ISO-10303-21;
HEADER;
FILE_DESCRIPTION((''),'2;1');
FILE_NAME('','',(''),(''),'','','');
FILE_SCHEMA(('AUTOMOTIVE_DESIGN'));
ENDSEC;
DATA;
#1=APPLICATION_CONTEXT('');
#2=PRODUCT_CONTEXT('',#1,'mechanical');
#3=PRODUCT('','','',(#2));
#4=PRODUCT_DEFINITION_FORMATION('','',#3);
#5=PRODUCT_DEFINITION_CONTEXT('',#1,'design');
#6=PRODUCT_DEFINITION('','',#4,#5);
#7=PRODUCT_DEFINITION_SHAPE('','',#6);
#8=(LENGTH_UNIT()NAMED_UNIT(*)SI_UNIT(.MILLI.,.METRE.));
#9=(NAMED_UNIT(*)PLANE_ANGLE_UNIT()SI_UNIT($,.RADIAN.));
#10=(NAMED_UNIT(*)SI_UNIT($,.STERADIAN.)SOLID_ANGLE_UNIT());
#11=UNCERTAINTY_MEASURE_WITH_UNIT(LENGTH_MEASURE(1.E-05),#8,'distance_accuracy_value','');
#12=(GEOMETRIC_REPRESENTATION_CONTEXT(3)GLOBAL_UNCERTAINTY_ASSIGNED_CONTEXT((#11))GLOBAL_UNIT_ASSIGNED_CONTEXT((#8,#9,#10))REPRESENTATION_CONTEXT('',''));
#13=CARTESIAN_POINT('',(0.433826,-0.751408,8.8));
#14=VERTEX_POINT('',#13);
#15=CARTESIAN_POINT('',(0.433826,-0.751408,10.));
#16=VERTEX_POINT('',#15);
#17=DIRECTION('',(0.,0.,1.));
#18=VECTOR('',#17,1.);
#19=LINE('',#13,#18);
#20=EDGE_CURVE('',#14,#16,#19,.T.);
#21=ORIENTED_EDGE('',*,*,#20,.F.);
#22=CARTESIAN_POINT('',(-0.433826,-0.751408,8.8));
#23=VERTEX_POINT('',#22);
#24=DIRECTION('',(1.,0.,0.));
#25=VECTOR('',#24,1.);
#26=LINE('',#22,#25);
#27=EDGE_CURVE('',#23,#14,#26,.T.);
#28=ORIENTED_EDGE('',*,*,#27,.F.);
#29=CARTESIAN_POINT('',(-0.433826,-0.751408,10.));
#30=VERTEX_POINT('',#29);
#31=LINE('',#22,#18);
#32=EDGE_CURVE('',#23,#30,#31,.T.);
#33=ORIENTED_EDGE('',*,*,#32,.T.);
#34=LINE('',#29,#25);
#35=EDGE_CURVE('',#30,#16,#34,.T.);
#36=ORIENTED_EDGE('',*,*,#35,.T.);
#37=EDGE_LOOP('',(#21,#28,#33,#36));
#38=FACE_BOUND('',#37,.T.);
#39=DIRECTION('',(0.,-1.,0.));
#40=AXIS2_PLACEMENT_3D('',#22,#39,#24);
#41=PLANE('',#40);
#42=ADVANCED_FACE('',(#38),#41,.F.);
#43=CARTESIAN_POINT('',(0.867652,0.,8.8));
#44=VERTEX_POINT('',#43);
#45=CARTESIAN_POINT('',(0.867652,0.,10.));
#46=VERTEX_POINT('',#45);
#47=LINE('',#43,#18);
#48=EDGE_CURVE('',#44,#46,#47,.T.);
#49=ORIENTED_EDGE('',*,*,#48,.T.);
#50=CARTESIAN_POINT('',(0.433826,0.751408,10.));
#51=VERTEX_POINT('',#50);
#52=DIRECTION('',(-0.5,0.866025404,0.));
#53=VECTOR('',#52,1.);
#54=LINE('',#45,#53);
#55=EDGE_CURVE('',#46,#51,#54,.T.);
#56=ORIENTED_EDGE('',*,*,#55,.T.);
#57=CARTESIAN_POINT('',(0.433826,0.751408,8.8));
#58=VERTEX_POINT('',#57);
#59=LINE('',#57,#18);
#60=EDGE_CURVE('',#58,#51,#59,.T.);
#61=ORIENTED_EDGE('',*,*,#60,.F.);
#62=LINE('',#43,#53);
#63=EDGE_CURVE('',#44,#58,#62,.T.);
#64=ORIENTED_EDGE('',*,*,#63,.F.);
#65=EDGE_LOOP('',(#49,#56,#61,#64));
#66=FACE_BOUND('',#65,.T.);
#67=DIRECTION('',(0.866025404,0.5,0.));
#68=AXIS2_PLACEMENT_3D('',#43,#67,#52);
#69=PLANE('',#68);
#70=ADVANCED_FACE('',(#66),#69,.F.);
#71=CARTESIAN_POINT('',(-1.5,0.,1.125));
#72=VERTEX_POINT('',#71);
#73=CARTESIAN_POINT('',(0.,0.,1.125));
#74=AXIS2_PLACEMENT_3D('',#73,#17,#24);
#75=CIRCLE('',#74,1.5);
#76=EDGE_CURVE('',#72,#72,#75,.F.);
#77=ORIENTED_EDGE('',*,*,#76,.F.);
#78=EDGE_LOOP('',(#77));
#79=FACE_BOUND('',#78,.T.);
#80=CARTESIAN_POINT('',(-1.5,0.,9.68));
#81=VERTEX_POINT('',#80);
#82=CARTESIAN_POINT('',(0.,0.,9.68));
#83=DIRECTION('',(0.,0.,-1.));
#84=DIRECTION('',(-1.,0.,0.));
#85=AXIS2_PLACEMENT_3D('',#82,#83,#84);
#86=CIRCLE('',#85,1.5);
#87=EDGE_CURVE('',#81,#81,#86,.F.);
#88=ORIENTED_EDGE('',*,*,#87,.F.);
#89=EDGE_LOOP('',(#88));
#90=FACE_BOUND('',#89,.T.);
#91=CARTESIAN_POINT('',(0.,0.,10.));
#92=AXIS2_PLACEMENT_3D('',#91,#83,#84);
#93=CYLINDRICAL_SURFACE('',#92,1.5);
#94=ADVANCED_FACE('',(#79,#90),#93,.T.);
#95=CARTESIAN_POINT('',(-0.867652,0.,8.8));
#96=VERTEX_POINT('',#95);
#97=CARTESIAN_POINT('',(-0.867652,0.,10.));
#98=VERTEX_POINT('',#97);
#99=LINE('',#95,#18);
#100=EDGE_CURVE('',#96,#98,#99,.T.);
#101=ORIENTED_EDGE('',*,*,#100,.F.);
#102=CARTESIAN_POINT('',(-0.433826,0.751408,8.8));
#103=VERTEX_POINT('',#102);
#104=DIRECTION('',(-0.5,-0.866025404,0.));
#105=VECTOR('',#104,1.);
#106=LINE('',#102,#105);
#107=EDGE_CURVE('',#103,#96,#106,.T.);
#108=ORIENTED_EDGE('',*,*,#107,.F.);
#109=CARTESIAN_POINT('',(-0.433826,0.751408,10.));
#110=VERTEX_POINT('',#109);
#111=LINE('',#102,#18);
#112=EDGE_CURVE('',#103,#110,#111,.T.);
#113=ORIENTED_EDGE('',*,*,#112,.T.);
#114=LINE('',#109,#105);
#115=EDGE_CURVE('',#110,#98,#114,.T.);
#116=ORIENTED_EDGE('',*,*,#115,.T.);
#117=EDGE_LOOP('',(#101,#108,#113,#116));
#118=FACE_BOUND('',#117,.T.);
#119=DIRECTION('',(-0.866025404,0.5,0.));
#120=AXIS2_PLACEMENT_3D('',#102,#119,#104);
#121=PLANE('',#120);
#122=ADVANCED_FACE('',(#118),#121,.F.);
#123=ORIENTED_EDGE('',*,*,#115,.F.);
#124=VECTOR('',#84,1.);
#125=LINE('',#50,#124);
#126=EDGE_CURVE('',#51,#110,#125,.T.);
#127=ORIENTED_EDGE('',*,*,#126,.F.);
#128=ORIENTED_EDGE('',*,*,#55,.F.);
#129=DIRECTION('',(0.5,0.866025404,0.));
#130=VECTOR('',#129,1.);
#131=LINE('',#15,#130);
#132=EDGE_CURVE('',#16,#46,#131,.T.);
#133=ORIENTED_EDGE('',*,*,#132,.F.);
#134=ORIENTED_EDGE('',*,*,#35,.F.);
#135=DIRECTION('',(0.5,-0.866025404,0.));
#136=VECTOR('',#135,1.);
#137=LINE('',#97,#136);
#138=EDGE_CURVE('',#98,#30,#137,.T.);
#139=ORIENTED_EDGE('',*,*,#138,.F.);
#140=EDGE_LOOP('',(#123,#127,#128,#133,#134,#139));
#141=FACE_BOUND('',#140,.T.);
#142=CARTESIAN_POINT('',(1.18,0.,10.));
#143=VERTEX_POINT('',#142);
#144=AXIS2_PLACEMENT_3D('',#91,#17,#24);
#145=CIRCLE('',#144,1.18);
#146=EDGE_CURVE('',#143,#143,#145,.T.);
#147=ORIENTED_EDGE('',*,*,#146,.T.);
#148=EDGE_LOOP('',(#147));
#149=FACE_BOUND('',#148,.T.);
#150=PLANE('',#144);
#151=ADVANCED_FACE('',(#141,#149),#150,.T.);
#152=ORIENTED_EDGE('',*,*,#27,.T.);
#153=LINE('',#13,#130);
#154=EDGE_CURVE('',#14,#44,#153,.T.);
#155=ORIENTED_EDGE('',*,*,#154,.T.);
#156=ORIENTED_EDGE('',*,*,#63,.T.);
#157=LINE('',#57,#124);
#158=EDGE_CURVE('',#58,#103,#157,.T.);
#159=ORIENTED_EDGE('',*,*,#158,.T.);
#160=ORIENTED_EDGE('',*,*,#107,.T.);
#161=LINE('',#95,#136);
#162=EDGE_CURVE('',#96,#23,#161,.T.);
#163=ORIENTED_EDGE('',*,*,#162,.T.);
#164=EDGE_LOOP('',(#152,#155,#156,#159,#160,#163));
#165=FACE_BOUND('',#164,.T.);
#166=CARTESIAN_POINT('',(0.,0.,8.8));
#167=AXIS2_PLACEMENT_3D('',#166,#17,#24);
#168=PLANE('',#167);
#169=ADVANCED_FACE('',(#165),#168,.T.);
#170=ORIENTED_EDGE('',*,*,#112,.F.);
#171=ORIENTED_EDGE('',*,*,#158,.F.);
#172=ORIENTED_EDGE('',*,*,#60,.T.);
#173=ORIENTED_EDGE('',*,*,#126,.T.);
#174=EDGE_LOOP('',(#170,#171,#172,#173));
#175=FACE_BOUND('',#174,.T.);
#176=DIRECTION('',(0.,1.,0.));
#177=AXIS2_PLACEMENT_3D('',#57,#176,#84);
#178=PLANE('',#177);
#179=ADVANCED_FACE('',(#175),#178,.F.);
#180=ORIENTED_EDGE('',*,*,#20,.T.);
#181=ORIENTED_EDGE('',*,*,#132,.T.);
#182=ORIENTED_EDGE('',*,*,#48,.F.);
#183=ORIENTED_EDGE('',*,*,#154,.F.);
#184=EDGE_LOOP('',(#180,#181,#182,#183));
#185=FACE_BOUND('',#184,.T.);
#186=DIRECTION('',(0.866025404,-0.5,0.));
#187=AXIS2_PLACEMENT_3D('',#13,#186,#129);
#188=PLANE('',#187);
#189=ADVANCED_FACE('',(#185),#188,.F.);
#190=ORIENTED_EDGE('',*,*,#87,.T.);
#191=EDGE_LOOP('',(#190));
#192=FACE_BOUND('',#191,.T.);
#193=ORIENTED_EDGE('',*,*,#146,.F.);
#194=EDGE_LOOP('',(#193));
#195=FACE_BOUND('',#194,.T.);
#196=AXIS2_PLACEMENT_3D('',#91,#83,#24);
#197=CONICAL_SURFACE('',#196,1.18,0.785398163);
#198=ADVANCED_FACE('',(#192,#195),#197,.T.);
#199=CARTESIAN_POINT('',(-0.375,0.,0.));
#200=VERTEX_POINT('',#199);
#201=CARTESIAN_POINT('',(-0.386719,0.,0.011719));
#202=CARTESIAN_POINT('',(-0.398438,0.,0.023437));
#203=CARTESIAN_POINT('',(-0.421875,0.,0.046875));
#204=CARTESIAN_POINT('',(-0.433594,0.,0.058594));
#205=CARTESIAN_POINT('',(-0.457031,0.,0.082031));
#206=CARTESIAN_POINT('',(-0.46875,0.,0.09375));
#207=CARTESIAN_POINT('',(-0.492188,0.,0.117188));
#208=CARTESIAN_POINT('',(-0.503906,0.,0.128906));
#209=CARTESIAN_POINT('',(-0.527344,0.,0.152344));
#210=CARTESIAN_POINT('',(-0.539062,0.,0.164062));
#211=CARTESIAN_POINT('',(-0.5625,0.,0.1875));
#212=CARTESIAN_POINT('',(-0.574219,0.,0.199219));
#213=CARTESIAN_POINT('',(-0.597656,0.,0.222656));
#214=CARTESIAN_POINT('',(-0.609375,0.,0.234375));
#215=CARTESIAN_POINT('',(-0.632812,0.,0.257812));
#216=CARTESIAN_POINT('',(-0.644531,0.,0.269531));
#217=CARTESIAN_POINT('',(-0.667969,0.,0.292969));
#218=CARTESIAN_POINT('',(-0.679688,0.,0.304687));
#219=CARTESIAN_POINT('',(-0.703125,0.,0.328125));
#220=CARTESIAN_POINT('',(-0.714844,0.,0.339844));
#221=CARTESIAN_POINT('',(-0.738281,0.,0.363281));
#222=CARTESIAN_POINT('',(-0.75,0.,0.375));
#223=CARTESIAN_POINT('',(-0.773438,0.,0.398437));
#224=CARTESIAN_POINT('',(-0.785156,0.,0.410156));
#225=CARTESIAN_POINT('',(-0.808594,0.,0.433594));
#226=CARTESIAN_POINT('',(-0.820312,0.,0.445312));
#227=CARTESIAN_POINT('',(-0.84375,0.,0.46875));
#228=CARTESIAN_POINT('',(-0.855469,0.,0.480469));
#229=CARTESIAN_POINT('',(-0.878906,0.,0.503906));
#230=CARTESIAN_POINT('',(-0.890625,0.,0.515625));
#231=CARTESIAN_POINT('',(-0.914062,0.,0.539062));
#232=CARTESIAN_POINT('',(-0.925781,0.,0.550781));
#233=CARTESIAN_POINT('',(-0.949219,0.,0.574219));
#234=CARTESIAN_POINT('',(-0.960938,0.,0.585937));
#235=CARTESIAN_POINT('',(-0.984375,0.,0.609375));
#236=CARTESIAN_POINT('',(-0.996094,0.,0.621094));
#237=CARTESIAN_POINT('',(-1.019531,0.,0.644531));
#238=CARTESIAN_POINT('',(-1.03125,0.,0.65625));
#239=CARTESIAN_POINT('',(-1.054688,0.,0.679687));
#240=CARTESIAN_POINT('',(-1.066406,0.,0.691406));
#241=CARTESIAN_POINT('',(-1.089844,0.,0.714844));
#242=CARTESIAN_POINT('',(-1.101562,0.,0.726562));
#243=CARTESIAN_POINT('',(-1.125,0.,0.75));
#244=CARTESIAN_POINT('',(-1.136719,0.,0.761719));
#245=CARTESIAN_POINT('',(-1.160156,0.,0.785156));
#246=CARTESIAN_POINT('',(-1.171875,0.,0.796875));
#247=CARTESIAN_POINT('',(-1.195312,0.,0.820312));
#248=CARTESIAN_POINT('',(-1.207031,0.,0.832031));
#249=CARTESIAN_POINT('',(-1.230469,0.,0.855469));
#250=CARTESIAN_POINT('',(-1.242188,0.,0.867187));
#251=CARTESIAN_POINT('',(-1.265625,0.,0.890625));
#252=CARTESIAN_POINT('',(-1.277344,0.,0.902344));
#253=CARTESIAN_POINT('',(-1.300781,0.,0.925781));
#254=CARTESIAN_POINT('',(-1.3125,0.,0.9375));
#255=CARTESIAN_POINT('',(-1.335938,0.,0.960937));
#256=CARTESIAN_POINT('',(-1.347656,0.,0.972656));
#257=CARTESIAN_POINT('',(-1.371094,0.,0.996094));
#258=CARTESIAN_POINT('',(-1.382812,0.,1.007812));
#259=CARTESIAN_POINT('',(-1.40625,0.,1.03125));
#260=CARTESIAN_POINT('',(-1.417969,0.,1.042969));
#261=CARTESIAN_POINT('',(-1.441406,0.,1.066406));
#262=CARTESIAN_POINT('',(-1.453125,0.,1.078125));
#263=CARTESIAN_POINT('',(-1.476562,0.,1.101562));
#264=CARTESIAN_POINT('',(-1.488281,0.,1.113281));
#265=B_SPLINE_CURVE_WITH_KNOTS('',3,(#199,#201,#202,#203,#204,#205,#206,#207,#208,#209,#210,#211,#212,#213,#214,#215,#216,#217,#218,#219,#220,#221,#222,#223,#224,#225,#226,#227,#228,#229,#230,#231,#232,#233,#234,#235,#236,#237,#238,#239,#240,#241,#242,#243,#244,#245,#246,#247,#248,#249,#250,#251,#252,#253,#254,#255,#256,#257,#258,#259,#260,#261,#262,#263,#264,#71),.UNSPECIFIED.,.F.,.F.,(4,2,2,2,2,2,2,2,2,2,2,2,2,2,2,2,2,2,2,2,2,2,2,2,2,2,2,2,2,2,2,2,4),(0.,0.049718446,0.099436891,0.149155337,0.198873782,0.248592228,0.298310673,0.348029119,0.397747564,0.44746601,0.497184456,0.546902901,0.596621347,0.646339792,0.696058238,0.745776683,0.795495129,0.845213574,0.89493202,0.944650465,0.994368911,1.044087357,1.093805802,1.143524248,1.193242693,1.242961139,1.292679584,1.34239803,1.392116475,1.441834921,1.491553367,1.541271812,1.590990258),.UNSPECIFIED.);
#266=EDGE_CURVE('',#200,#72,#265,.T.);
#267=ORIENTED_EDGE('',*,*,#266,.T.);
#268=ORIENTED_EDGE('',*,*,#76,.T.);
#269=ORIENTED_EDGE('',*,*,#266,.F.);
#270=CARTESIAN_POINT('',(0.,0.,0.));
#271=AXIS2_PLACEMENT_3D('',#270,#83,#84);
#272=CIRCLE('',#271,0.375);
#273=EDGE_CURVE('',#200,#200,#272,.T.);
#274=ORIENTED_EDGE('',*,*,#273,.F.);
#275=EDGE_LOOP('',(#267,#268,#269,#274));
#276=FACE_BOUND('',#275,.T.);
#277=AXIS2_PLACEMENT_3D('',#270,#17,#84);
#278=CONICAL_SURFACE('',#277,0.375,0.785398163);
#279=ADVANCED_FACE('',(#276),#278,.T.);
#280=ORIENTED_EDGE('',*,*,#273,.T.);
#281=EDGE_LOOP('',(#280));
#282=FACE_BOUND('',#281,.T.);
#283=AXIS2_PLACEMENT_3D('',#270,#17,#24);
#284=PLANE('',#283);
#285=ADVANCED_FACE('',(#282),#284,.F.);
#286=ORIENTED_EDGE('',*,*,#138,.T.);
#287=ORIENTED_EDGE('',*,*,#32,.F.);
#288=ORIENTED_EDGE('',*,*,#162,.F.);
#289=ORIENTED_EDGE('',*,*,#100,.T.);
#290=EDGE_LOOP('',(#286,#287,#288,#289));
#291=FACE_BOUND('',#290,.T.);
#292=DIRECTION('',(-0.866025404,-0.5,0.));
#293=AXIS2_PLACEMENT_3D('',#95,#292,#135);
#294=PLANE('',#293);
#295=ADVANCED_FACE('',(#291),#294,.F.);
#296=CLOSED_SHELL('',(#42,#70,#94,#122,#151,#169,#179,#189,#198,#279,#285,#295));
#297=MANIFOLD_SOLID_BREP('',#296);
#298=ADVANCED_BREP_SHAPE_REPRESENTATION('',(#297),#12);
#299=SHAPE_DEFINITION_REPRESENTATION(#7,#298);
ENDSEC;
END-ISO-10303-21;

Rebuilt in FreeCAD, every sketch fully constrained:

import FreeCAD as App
import Part
import Sketcher

V = App.Vector
Q = App.Units.Quantity


def faces_at(feature, points):
    """Names of the faces that lie closest to the given points."""
    faces = feature.Shape.Faces
    near = lambda p: min(range(len(faces)), key=lambda i: faces[i].distToShape(Part.Vertex(*p))[0])
    return sorted({f"Face{near(p) + 1}" for p in points})


def add_polygon(sketch, points):
    """Adds a closed chain of lines whose ends are joined by coincident constraints."""
    first, n = sketch.GeometryCount, len(points)
    for a, b in zip(points, points[1:] + points[:1]):
        sketch.addGeometry(Part.LineSegment(App.Vector(*a, 0), App.Vector(*b, 0)), False)
    for i in range(n):
        sketch.addConstraint(Sketcher.Constraint("Coincident", first + i, 2, first + (i + 1) % n, 1))

doc = App.newDocument("Part")
body = doc.addObject("PartDesign::Body", "Body")

# Sketch on XY plane
sketch1 = doc.addObject("Sketcher::SketchObject", "Sketch")
body.addObject(sketch1)
sketch1.AttachmentSupport = (doc.XY_Plane, [""])
sketch1.MapMode = "FlatFace"
sketch1.addGeometry(Part.Circle(V(0, 0, 0), V(0, 0, 1), 1.5), False)
sketch1.addConstraint([
    Sketcher.Constraint("Coincident", 0, 3, -1, 1),
    Sketcher.Constraint("Diameter", 0, Q("3 mm")),
])
pad1 = doc.addObject("PartDesign::Pad", "Pad")
body.addObject(pad1)
pad1.Profile = sketch1
pad1.Length = 10

# Sketch on XY plane
sketch2 = doc.addObject("Sketcher::SketchObject", "Sketch001")
body.addObject(sketch2)
sketch2.AttachmentSupport = (doc.XY_Plane, [""])
sketch2.MapMode = "FlatFace"
sketch2.AttachmentOffset = App.Placement(V(0, 0, 10), App.Rotation())
add_polygon(sketch2, [(0.867652, 0), (0.433826, 0.751408), (-0.433826, 0.751408), (-0.867652, 0), (-0.433826, -0.751408), (0.433826, -0.751408)])  # lines 0-5
sketch2.addConstraint([
    Sketcher.Constraint("Horizontal", 1),
    Sketcher.Constraint("Horizontal", 4),
    Sketcher.Constraint("Symmetric", 0, 2, 3, 2, -1, 1),
    Sketcher.Constraint("Symmetric", 2, 2, 5, 2, -1, 1),
    Sketcher.Constraint("PointOnObject", 2, 2, -1),
    Sketcher.Constraint("Parallel", 2, 5),
    Sketcher.Constraint("Vertical", 1, 2, 3, 2),
    Sketcher.Constraint("Angle", 0, Q("120 deg")),
    Sketcher.Constraint("DistanceX", 1, 2, 1, 1, Q("0.867652 mm")),
    Sketcher.Constraint("Distance", 0, Q("0.867652 mm")),
])
pocket1 = doc.addObject("PartDesign::Pocket", "Pocket")
body.addObject(pocket1)
pocket1.Profile = sketch2
pocket1.Length = 1.2
body2 = doc.addObject("PartDesign::Body", "Body001")

# Sketch on XY plane
sketch3 = doc.addObject("Sketcher::SketchObject", "Sketch002")
body2.addObject(sketch3)
sketch3.AttachmentSupport = (doc.getObject("XY_Plane001"), [""])
sketch3.MapMode = "FlatFace"
sketch3.AttachmentOffset = App.Placement(V(0, 0, 10), App.Rotation())
add_polygon(sketch3, [(-4.786, 4.786), (-4.786, -4.786), (4.786, -4.786), (4.786, 4.786)])  # lines 0-3
sketch3.addGeometry(Part.Circle(V(0, 0, 0), V(0, 0, 1), 1.18), False)  # 4
sketch3.addConstraint([
    Sketcher.Constraint("Vertical", 0),
    Sketcher.Constraint("Horizontal", 1),
    Sketcher.Constraint("Vertical", 2),
    Sketcher.Constraint("Horizontal", 3),
    Sketcher.Constraint("Coincident", 4, 3, -1, 1),
    Sketcher.Constraint("Symmetric", 0, 2, 2, 2, -1, 1),
    Sketcher.Constraint("Equal", 3, 0),
    Sketcher.Constraint("Diameter", 4, Q("2.36 mm")),
    Sketcher.Constraint("DistanceX", 1, 1, 1, 2, Q("9.572 mm")),
])
pad2 = doc.addObject("PartDesign::Pad", "Pad001")
body2.addObject(pad2)
pad2.Profile = sketch3
pad2.Length = 1.2
pad2.Reversed = True
doc.recompute()

datumplane = doc.addObject("PartDesign::Plane", "DatumPlane")
body2.addObject(datumplane)
datumplane.AttachmentSupport = (doc.getObject("XY_Plane001"), [""])
datumplane.MapMode = "FlatFace"
datumplane.AttachmentOffset = App.Placement(V(0, 0, 10), App.Rotation())
draft = doc.addObject("PartDesign::Draft", "Draft")
body2.addObject(draft)
draft.Base = (pad2, faces_at(pad2, [
    (0, -4.786, 9.4),
    (4.786, 0, 9.4),
    (0, 4.786, 9.4),
    (-4.786, 0, 9.4),
    (-1.18, 0, 9.4),
]))
draft.NeutralPlane = (datumplane, [""])
draft.Angle = 45
draft.Reversed = True
doc.recompute()

boolean = doc.addObject("PartDesign::Boolean", "Boolean")
body.addObject(boolean)
boolean.Type = "Cut"
boolean.addObjects([body2])
body3 = doc.addObject("PartDesign::Body", "Body002")

# Sketch on XY plane
sketch4 = doc.addObject("Sketcher::SketchObject", "Sketch003")
body3.addObject(sketch4)
sketch4.AttachmentSupport = (doc.getObject("XY_Plane002"), [""])
sketch4.MapMode = "FlatFace"
add_polygon(sketch4, [(4.786, 4.786), (4.786, -4.786), (-4.786, -4.786), (-4.786, 4.786)])  # lines 0-3
sketch4.addGeometry(Part.Circle(V(0, 0, 0), V(0, 0, 1), 0.375), False)  # 4
sketch4.addConstraint([
    Sketcher.Constraint("Vertical", 0),
    Sketcher.Constraint("Horizontal", 1),
    Sketcher.Constraint("Vertical", 2),
    Sketcher.Constraint("Horizontal", 3),
    Sketcher.Constraint("Coincident", 4, 3, -1, 1),
    Sketcher.Constraint("Symmetric", 0, 2, 2, 2, -1, 1),
    Sketcher.Constraint("Equal", 3, 0),
    Sketcher.Constraint("Diameter", 4, Q("0.75 mm")),
    Sketcher.Constraint("DistanceX", 1, 2, 1, 1, Q("9.572 mm")),
])
pad3 = doc.addObject("PartDesign::Pad", "Pad002")
body3.addObject(pad3)
pad3.Profile = sketch4
pad3.Length = 1.2
doc.recompute()

draft2 = doc.addObject("PartDesign::Draft", "Draft001")
body3.addObject(draft2)
draft2.Base = (pad3, faces_at(pad3, [
    (0, -4.786, 0.6),
    (-4.786, 0, 0.6),
    (0, 4.786, 0.6),
    (4.786, 0, 0.6),
    (0.375, 0, 0.6),
]))
draft2.NeutralPlane = (doc.getObject("XY_Plane002"), [""])
draft2.Angle = 45
draft2.Reversed = False
doc.recompute()

boolean2 = doc.addObject("PartDesign::Boolean", "Boolean001")
body.addObject(boolean2)
boolean2.Type = "Cut"
boolean2.addObjects([body3])

doc.recompute()
